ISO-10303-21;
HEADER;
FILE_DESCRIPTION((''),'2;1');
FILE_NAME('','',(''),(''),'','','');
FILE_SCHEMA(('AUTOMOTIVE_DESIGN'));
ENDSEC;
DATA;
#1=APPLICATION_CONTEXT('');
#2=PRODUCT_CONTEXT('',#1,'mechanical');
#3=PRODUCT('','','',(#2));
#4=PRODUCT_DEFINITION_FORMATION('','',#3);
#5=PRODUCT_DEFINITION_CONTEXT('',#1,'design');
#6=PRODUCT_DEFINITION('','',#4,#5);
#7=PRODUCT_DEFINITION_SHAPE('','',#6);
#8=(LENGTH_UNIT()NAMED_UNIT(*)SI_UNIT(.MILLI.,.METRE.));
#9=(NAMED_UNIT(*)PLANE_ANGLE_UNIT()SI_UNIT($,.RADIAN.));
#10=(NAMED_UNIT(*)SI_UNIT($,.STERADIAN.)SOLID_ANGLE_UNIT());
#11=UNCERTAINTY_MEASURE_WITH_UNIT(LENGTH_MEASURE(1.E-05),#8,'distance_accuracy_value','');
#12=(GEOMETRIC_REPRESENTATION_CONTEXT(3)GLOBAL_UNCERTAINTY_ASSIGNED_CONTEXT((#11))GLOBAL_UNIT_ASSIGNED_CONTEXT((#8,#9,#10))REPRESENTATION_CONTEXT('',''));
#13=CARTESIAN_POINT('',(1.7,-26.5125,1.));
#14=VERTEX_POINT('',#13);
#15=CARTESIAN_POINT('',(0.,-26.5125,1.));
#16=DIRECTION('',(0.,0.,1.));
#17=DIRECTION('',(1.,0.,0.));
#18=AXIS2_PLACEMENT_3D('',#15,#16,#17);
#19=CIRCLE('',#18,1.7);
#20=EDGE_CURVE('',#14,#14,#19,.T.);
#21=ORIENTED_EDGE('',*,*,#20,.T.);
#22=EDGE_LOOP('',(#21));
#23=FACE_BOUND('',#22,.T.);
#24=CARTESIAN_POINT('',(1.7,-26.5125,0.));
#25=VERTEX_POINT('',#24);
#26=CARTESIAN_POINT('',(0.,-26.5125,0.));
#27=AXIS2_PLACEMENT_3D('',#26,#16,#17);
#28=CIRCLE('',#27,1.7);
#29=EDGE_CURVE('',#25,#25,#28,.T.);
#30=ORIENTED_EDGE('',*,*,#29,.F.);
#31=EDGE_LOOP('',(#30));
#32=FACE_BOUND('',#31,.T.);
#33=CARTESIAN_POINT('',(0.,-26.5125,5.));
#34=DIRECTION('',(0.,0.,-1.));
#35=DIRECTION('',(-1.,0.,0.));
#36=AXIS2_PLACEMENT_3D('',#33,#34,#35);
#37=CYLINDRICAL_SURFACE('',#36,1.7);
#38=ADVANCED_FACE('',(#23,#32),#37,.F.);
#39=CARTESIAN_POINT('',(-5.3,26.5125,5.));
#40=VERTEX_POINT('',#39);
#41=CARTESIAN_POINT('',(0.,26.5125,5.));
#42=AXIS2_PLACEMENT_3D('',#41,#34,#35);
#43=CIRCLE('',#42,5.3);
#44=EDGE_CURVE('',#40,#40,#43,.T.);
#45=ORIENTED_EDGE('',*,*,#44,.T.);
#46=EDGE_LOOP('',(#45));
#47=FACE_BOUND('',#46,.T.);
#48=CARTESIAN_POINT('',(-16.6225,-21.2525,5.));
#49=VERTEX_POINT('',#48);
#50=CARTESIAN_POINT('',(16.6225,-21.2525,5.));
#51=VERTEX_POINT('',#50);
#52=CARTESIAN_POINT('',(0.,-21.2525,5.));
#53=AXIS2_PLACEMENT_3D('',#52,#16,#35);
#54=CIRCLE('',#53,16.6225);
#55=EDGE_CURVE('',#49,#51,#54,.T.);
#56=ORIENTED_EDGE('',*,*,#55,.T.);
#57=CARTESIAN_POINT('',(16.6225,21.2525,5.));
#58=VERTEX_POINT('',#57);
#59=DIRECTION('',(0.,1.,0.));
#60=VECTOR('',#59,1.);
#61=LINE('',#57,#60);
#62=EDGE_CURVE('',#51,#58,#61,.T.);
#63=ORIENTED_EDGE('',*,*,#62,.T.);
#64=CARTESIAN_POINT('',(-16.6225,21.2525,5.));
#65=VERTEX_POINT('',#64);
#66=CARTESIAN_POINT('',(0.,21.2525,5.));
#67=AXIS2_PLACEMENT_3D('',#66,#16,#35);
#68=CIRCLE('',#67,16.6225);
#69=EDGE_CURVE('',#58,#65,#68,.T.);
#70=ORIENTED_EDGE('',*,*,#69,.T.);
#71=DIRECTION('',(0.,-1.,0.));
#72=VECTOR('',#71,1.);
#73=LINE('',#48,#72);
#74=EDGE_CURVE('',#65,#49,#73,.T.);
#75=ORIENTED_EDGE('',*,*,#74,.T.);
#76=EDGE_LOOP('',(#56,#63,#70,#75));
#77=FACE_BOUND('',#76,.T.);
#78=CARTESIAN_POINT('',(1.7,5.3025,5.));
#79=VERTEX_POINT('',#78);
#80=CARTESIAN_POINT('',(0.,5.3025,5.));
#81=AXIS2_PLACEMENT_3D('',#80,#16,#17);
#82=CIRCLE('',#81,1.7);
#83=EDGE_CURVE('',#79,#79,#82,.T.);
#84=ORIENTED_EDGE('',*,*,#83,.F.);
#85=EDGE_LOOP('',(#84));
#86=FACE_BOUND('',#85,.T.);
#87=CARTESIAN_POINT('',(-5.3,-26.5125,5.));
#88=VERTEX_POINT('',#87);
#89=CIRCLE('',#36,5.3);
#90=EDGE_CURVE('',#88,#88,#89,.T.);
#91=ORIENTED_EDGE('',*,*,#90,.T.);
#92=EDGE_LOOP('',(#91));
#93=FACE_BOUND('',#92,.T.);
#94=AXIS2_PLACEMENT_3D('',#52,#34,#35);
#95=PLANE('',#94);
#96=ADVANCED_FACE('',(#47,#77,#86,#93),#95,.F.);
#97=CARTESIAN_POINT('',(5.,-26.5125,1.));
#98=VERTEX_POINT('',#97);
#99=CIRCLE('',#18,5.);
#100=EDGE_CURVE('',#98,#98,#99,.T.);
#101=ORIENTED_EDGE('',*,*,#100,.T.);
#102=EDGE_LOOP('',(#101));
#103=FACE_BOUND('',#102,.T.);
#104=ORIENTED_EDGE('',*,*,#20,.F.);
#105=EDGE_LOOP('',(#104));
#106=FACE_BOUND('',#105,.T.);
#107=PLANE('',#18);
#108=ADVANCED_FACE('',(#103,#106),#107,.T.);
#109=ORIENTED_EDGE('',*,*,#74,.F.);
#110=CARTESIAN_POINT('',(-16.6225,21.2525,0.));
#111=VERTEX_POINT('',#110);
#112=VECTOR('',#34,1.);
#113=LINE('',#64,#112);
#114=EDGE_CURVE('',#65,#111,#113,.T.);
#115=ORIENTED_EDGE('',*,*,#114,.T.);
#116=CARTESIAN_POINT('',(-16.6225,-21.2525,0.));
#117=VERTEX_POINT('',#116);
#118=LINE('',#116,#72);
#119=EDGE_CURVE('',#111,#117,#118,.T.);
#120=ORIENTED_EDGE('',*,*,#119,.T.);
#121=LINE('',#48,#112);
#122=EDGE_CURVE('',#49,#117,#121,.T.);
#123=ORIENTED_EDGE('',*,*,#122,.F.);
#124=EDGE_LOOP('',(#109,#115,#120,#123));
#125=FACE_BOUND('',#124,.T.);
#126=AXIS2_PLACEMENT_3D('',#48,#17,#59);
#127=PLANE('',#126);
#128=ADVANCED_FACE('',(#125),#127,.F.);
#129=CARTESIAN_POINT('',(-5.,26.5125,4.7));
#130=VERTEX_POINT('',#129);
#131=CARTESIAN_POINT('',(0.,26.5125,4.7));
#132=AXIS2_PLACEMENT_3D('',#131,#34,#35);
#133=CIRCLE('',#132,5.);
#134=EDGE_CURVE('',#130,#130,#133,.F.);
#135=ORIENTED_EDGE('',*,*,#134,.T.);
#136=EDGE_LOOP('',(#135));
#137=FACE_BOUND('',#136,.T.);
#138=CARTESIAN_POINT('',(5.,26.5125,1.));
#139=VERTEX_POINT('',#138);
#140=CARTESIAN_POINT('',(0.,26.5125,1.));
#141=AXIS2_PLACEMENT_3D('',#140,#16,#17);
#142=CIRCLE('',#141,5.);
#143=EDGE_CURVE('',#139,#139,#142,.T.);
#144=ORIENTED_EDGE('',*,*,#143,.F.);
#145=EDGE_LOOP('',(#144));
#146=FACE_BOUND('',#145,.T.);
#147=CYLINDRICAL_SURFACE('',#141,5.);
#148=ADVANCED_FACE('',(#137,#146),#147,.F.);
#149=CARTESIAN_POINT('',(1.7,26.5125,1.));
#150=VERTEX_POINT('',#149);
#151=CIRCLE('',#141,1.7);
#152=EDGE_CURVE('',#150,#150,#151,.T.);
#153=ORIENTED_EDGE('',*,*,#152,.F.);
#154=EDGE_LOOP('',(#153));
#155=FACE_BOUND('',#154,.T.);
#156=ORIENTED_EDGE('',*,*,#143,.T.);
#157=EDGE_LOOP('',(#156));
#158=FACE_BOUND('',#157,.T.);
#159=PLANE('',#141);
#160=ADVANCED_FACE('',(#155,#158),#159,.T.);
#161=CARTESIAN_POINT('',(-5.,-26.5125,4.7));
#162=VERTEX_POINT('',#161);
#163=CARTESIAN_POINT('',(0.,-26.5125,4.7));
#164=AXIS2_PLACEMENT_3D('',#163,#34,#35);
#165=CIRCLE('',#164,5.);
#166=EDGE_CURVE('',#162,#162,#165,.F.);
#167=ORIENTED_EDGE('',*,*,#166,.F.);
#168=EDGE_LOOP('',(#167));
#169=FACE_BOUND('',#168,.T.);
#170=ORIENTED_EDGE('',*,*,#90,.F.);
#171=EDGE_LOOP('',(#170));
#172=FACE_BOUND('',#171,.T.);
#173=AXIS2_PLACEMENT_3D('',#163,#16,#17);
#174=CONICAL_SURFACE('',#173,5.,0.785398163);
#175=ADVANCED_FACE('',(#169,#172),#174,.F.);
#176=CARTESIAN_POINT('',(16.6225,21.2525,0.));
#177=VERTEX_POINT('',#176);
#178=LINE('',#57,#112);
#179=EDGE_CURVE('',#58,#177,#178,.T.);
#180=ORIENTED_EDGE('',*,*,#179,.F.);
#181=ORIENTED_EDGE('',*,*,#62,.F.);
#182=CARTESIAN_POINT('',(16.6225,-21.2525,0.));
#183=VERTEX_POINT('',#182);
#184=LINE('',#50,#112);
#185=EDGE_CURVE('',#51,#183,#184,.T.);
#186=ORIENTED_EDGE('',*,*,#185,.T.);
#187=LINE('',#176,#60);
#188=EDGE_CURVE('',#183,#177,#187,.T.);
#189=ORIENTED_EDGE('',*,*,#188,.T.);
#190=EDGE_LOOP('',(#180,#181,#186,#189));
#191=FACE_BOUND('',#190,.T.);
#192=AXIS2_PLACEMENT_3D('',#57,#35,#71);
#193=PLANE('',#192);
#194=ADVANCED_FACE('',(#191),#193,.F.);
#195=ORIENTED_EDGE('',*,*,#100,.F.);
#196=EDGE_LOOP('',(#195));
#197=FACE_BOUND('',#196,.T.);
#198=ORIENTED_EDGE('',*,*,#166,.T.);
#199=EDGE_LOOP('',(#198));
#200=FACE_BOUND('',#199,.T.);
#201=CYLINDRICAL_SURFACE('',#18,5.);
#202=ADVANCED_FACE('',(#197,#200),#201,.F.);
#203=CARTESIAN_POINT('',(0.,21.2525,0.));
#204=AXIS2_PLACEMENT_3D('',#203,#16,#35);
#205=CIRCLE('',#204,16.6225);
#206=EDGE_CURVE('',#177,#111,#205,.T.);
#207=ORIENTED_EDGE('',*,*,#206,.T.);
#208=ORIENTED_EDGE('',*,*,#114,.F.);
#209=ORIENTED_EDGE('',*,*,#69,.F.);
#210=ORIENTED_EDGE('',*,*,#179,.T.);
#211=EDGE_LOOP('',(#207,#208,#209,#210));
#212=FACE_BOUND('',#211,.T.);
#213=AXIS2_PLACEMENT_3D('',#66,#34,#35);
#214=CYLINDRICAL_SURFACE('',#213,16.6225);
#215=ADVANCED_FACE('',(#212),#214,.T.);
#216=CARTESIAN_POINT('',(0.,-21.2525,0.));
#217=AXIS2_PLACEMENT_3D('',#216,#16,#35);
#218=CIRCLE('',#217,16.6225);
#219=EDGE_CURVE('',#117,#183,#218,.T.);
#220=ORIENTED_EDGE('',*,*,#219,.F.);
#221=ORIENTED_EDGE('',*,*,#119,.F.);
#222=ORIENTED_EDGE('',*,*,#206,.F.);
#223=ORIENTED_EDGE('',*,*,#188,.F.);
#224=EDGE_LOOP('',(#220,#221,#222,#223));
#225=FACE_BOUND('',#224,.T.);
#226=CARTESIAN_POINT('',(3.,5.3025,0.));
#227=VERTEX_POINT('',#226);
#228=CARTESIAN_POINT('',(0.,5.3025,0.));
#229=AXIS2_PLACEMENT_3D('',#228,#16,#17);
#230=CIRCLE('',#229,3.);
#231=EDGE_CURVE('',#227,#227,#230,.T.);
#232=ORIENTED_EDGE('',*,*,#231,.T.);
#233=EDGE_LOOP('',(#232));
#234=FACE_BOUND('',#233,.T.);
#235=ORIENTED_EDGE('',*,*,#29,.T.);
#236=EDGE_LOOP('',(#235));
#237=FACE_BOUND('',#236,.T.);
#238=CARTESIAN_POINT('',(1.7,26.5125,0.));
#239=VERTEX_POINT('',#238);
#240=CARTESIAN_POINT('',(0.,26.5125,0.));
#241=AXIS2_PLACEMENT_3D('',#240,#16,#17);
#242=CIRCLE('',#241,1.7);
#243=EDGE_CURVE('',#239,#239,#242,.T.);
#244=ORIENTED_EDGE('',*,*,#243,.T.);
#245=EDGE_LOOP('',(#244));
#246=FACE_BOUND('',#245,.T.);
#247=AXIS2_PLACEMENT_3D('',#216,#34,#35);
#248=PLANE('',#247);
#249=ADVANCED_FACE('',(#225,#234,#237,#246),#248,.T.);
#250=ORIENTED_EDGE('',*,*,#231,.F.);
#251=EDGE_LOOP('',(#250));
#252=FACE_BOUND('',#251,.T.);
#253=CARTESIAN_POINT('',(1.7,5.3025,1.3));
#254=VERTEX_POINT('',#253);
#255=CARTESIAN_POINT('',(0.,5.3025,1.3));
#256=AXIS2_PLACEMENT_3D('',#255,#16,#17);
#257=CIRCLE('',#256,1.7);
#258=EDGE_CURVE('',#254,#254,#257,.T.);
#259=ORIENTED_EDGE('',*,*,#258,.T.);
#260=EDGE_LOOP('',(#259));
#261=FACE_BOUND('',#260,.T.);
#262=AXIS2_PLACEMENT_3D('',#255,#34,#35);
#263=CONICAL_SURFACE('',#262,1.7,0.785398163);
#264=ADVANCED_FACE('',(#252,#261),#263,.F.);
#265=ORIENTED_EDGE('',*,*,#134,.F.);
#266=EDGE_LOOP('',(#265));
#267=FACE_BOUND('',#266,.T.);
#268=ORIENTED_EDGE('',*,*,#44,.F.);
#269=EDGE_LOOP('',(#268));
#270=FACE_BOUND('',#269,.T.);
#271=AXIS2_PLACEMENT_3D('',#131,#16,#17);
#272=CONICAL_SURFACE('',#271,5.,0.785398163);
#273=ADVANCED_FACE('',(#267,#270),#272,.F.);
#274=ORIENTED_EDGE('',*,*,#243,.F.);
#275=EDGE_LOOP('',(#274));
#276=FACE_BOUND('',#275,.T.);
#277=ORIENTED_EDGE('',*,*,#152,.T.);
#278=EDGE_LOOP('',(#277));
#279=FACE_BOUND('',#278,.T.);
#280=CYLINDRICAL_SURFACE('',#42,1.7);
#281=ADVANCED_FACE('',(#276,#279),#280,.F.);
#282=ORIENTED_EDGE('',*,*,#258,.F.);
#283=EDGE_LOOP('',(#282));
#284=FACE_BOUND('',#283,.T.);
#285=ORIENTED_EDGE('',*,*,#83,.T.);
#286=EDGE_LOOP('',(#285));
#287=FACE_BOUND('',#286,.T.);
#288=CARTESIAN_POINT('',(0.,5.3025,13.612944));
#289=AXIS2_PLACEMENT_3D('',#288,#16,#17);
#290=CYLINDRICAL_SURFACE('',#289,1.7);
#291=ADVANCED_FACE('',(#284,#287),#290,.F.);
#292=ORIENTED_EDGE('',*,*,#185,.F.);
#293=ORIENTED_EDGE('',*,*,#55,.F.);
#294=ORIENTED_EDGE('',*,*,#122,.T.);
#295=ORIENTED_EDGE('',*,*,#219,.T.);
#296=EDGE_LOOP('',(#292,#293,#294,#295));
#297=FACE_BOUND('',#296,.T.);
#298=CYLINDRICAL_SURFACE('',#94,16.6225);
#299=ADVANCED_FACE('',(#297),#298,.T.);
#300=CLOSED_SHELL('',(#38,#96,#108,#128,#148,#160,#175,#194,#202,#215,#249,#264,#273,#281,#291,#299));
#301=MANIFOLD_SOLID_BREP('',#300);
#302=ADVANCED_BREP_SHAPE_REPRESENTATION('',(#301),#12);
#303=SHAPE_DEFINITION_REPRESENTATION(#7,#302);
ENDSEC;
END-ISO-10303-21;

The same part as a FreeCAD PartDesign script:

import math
import FreeCAD as App
import Part
import Sketcher
from FreeCAD import Vector
Q = App.Units.Quantity


def edges_at(feature, points):
    """Names of the edges that pass closest to the given points."""
    edges = feature.Shape.Edges
    near = lambda p: min(range(len(edges)), key=lambda i: edges[i].distToShape(Part.Vertex(*p))[0])
    return sorted({f"Edge{near(p) + 1}" for p in points})

doc = App.newDocument("Part")
body = doc.addObject("PartDesign::Body", "Body")

# Sketch on XY plane
sketch1 = body.newObject("Sketcher::SketchObject", "Sketch")
sketch1.AttachmentSupport = (doc.getObject("XY_Plane"), [""])
sketch1.MapMode = "FlatFace"
sketch1.addGeometry([
    Part.LineSegment(Vector(-16.6, 21.3, 0), Vector(-16.6, -21.3, 0)),  # 0
    Part.ArcOfCircle(Part.Circle(Vector(0, -21.3, 0), Vector(0, 0, 1), 16.6), math.radians(180), math.radians(360)),  # 1
    Part.LineSegment(Vector(16.6, -21.3, 0), Vector(16.6, 21.3, 0)),  # 2
    Part.ArcOfCircle(Part.Circle(Vector(0, 21.3, 0), Vector(0, 0, 1), 16.6), math.radians(0), math.radians(180)),  # 3
    Part.Circle(Vector(0, -26.5, 0), Vector(0, 0, 1), 1.7),  # 4
    Part.Circle(Vector(0, 26.5, 0), Vector(0, 0, 1), 1.7),  # 5
], False)
sketch1.addConstraint([
    Sketcher.Constraint("Tangent", 0, 2, 1, 1),
    Sketcher.Constraint("Tangent", 1, 2, 2, 1),
    Sketcher.Constraint("Tangent", 2, 2, 3, 1),
    Sketcher.Constraint("Tangent", 3, 2, 0, 1),
    Sketcher.Constraint("Vertical", 0),
    Sketcher.Constraint("Vertical", 2),
    Sketcher.Constraint("Equal", 4, 5),
    Sketcher.Constraint("Symmetric", 1, 3, 3, 3, -1, 1),
    Sketcher.Constraint("Symmetric", 4, 3, 5, 3, -1, 1),
    Sketcher.Constraint("PointOnObject", 4, 3, -2),
    Sketcher.Constraint("Diameter", 4, 3.4),
    Sketcher.Constraint("Radius", 1, 16.6225),
    Sketcher.Constraint("DistanceY", 0, 2, 0, 1, 42.505),
    Sketcher.Constraint("DistanceY", 4, 3, 1, 3, 5.26),
])
pad1 = body.newObject("PartDesign::Pad", "Pad")
pad1.Profile = sketch1
pad1.Length = 5

# Sketch on XY plane
sketch2 = body.newObject("Sketcher::SketchObject", "Sketch001")
sketch2.AttachmentSupport = (doc.getObject("XY_Plane"), [""])
sketch2.MapMode = "FlatFace"
sketch2.AttachmentOffset = App.Placement(Vector(0, 0, 5), App.Rotation())
sketch2.addGeometry([
    Part.Circle(Vector(0, 27, 0), Vector(0, 0, 1), 5),
    Part.Circle(Vector(0, -27, 0), Vector(0, 0, 1), 5),
], False)
sketch2.addConstraint([
    Sketcher.Constraint("Equal", 0, 1),
    Sketcher.Constraint("Symmetric", 0, 3, 1, 3, -1, 1),
    Sketcher.Constraint("PointOnObject", 0, 3, -2),
    Sketcher.Constraint("Diameter", 0, 10.0),
    Sketcher.Constraint("DistanceY", 1, 3, 0, 3, 53.025),
])
pocket1 = body.newObject("PartDesign::Pocket", "Pocket")
pocket1.Profile = sketch2
pocket1.Length = 4

# Sketch on YZ plane
sketch3 = body.newObject("Sketcher::SketchObject", "Sketch002")
sketch3.AttachmentSupport = (doc.getObject("YZ_Plane"), [""])
sketch3.MapMode = "FlatFace"
sketch3.addGeometry([
    Part.LineSegment(Vector(5.3, 0, 0), Vector(5.3, 5, 0)),  # 0
    Part.LineSegment(Vector(5.3, 5, 0), Vector(3.6, 5, 0)),  # 1
    Part.LineSegment(Vector(3.6, 5, 0), Vector(3.6, 1.3, 0)),  # 2
    Part.LineSegment(Vector(3.6, 1.3, 0), Vector(2.3, 0, 0)),  # 3
    Part.LineSegment(Vector(2.3, 0, 0), Vector(5.3, 0, 0)),  # 4
], False)
sketch3.addGeometry(Part.LineSegment(Vector(5.3, 5, 0), Vector(5.3, 0, 0)), True)  # axis
sketch3.addConstraint([
    Sketcher.Constraint("Coincident", 0, 2, 1, 1),
    Sketcher.Constraint("Coincident", 1, 2, 2, 1),
    Sketcher.Constraint("Coincident", 2, 2, 3, 1),
    Sketcher.Constraint("Coincident", 3, 2, 4, 1),
    Sketcher.Constraint("Coincident", 4, 2, 0, 1),
    Sketcher.Constraint("Vertical", 0),
    Sketcher.Constraint("Horizontal", 1),
    Sketcher.Constraint("Vertical", 2),
    Sketcher.Constraint("Horizontal", 4),
    Sketcher.Constraint("Vertical", 5),
    Sketcher.Constraint("Coincident", 5, 1, 0, 2),
    Sketcher.Constraint("PointOnObject", 3, 2, -1),
    Sketcher.Constraint("PointOnObject", 5, 2, -1),
    Sketcher.Constraint("DistanceX", 4, 1, 4, 2, 3.0),
    Sketcher.Constraint("DistanceY", 0, 1, 0, 2, 5.0),
    Sketcher.Constraint("Angle", 3, Q("-135 deg")),
    Sketcher.Constraint("DistanceX", 1, 2, 1, 1, 1.7),
    Sketcher.Constraint("DistanceX", -1, 1, 0, 2, 5.3025),
])
groove = body.newObject("PartDesign::Groove", "Groove")
groove.Profile = sketch3
groove.ReferenceAxis = (sketch3, ["Axis0"])
groove.Angle = 360
doc.recompute()

chamfer = body.newObject("PartDesign::Chamfer", "Chamfer")
chamfer.Base = (groove, edges_at(groove, [(-5, 26.512, 5), (-5, -26.512, 5)]))
chamfer.Size = 0.3

doc.recompute()
